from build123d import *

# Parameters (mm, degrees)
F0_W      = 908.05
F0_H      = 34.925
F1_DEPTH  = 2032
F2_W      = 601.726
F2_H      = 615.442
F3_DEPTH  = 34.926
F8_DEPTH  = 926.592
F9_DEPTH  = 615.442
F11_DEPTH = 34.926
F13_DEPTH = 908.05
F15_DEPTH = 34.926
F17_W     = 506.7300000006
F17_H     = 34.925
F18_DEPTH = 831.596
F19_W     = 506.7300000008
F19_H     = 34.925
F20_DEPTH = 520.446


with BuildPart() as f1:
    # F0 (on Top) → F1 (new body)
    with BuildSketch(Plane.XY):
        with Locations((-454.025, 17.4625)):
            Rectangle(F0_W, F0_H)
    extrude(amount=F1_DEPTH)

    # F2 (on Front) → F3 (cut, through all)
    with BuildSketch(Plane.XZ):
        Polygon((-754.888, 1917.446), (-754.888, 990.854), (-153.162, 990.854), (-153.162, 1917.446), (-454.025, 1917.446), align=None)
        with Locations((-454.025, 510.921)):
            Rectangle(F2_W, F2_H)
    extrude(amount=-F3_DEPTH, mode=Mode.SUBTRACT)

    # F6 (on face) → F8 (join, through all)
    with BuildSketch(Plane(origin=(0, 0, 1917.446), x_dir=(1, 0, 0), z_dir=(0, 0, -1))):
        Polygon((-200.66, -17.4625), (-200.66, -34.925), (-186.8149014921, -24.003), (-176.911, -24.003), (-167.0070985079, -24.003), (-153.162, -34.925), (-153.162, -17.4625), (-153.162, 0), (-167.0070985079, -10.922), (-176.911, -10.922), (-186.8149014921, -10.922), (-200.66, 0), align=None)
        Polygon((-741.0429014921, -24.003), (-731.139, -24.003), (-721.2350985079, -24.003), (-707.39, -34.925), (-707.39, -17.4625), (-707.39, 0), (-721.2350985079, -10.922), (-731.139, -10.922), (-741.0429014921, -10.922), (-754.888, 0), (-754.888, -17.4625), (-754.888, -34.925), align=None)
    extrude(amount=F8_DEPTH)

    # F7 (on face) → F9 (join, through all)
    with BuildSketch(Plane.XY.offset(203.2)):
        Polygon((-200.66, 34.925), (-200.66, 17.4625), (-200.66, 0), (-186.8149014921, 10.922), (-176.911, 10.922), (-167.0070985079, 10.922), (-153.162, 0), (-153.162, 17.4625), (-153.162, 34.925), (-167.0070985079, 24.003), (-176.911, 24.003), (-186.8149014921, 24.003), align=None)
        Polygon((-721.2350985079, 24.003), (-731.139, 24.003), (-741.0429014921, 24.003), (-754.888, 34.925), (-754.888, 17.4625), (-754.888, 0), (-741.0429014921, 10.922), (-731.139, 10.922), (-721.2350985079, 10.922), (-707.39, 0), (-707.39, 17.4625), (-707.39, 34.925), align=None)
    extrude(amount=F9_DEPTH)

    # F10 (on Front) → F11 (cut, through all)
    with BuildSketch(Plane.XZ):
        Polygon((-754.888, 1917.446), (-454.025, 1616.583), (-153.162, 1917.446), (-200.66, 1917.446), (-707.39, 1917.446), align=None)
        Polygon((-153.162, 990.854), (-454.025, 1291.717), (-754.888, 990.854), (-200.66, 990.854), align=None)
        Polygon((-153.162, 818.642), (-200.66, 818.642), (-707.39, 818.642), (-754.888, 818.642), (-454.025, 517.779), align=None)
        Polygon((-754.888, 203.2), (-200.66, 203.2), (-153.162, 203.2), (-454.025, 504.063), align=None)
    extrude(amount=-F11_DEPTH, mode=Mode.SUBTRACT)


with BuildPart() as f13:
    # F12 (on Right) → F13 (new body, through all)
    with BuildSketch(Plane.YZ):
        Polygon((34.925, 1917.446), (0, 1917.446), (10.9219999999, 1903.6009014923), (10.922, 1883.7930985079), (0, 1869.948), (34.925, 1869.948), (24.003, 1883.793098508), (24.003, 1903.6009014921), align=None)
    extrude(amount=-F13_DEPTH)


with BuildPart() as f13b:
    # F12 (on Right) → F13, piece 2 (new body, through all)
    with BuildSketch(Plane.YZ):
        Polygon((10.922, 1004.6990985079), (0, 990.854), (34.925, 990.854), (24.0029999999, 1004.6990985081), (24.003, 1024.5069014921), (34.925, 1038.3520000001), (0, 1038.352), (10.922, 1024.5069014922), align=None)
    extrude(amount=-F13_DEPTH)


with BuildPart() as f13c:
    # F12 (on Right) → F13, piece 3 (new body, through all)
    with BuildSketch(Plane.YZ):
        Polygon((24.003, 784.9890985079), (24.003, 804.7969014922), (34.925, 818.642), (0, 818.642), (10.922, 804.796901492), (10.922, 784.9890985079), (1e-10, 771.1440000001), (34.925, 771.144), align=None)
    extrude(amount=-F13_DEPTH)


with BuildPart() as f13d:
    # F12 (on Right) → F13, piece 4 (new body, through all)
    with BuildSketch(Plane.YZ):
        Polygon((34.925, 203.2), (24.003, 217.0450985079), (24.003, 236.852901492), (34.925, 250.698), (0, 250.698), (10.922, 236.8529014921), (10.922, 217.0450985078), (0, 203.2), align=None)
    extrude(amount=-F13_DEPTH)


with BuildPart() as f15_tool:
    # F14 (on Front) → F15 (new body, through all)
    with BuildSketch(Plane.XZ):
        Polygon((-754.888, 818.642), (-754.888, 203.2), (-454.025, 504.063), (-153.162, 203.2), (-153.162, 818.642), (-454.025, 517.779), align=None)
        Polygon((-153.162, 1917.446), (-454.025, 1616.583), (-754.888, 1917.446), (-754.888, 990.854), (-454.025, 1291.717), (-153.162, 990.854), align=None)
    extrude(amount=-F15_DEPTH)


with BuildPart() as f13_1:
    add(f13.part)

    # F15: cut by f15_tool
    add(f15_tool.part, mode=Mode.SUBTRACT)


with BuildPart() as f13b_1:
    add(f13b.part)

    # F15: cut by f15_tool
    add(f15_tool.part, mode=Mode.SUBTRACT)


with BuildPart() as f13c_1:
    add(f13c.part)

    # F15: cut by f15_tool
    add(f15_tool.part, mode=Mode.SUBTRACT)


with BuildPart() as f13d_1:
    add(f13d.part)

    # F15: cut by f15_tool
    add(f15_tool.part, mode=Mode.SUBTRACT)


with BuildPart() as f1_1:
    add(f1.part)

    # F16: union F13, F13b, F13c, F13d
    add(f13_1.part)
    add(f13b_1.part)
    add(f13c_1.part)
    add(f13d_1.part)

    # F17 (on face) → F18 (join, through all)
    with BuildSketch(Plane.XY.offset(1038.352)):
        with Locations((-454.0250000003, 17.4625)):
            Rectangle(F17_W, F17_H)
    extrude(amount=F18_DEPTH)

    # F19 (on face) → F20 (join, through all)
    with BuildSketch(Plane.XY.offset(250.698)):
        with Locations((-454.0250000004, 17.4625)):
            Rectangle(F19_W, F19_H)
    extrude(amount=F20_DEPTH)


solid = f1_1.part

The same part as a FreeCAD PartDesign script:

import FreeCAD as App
import Part
import Sketcher

V = App.Vector
Q = App.Units.Quantity

doc = App.newDocument("Part")
params = doc.addObject("Spreadsheet::Sheet", "Params")
for row, (alias, value) in enumerate([
    ("sketch1_width", "35.75 in"),
    ("sketch1_height", "1.375 in"),
    ("pad1_length", "80 in"),
    ("sketch2_width", "23.69 in"),
    ("sketch2_height", "36.48 in"),
    ("sketch2_height2", "24.23 in"),
    ("sketch3_height", "1.375 in"),
    ("pad2_length", "36.48 in"),
    ("sketch4_height", "1.375 in"),
    ("sketch5_width", "23.69 in"),
    ("sketch6_width", "1.375 in"),
    ("pad4_length", "35.75 in"),
    ("sketch7_width", "1.375 in"),
    ("pad5_length", "35.75 in"),
    ("sketch8_width", "1.375 in"),
    ("pad6_length", "35.75 in"),
    ("sketch9_width", "1.375 in"),
    ("pad7_length", "35.75 in"),
    ("sketch10_height", "24.23 in"),
    ("sketch10_height2", "36.48 in"),
    ("pad8_length", "34.926 mm"),
    ("sketch11_width", "19.95 in"),
    ("sketch11_height", "1.375 in"),
    ("pad9_length", "32.74 in"),
    ("sketch12_width", "19.95 in"),
    ("sketch12_height", "1.375 in"),
    ("pad10_length", "20.49 in"),
], start=1):
    params.set(f"A{row}", alias)
    params.set(f"B{row}", "=" + value)
    params.setAlias(f"B{row}", alias)

body = doc.addObject("PartDesign::Body", "Body")

sketch1 = body.newObject("Sketcher::SketchObject", "Sketch")
sketch1.AttachmentSupport = (doc.getObject("XY_Plane"), [""])
sketch1.MapMode = "FlatFace"
sketch1.addGeometry([
    Part.LineSegment(V(-908.05, 34.925, 0), V(-908.05, 0, 0)),
    Part.LineSegment(V(-908.05, 0, 0), V(0, 0, 0)),
    Part.LineSegment(V(0, 0, 0), V(0, 34.925, 0)),
    Part.LineSegment(V(0, 34.925, 0), V(-908.05, 34.925, 0)),
], False)
sketch1.addConstraint([
    Sketcher.Constraint("Coincident", 0, 2, 1, 1),
    Sketcher.Constraint("Coincident", 1, 2, 2, 1),
    Sketcher.Constraint("Coincident", 2, 2, 3, 1),
    Sketcher.Constraint("Coincident", 3, 2, 0, 1),
    Sketcher.Constraint("Vertical", 0),
    Sketcher.Constraint("Horizontal", 1),
    Sketcher.Constraint("Vertical", 2),
    Sketcher.Constraint("Horizontal", 3),
    Sketcher.Constraint("Coincident", 1, 2, -1, 1),
    Sketcher.Constraint("DistanceX", 1, 1, 1, 2, Q("35.75 in")),
    Sketcher.Constraint("DistanceY", 0, 2, 0, 1, Q("1.375 in")),
])
sketch1.setExpression("Constraints[9]", "Params.sketch1_width")
sketch1.setExpression("Constraints[10]", "Params.sketch1_height")
pad1 = body.newObject("PartDesign::Pad", "Pad")
pad1.Profile = sketch1
pad1.setExpression("Length", "Params.pad1_length")

sketch2 = body.newObject("Sketcher::SketchObject", "Sketch001")
sketch2.AttachmentSupport = (doc.getObject("XZ_Plane"), [""])
sketch2.MapMode = "FlatFace"
sketch2.addGeometry([
    Part.LineSegment(V(-754.888, 1917.446, 0), V(-754.888, 990.854, 0)),
    Part.LineSegment(V(-754.888, 990.854, 0), V(-153.162, 990.854, 0)),
    Part.LineSegment(V(-153.162, 990.854, 0), V(-153.162, 1917.446, 0)),
    Part.LineSegment(V(-153.162, 1917.446, 0), V(-754.888, 1917.446, 0)),
    Part.LineSegment(V(-754.888, 818.642, 0), V(-754.888, 203.2, 0)),
    Part.LineSegment(V(-754.888, 203.2, 0), V(-153.162, 203.2, 0)),
    Part.LineSegment(V(-153.162, 203.2, 0), V(-153.162, 818.642, 0)),
    Part.LineSegment(V(-153.162, 818.642, 0), V(-754.888, 818.642, 0)),
], False)
sketch2.addConstraint([
    Sketcher.Constraint("Coincident", 0, 2, 1, 1),
    Sketcher.Constraint("Coincident", 1, 2, 2, 1),
    Sketcher.Constraint("Coincident", 2, 2, 3, 1),
    Sketcher.Constraint("Coincident", 3, 2, 0, 1),
    Sketcher.Constraint("Coincident", 4, 2, 5, 1),
    Sketcher.Constraint("Coincident", 5, 2, 6, 1),
    Sketcher.Constraint("Coincident", 6, 2, 7, 1),
    Sketcher.Constraint("Coincident", 7, 2, 4, 1),
    Sketcher.Constraint("Vertical", 0),
    Sketcher.Constraint("Horizontal", 1),
    Sketcher.Constraint("Vertical", 2),
    Sketcher.Constraint("Horizontal", 3),
    Sketcher.Constraint("Vertical", 4),
    Sketcher.Constraint("Horizontal", 5),
    Sketcher.Constraint("Vertical", 6),
    Sketcher.Constraint("Horizontal", 7),
    Sketcher.Constraint("Vertical", 3, 2, 4, 2),
    Sketcher.Constraint("Vertical", 2, 2, 5, 2),
    Sketcher.Constraint("DistanceY", -1, 1, 4, 2, Q("8 in")),
    Sketcher.Constraint("DistanceX", 1, 1, 1, 2, Q("23.69 in")),
    Sketcher.Constraint("DistanceY", 0, 2, 0, 1, Q("36.48 in")),
    Sketcher.Constraint("DistanceY", 4, 2, 4, 1, Q("24.23 in")),
    Sketcher.Constraint("DistanceX", 0, 2, -1, 1, Q("29.72 in")),
    Sketcher.Constraint("DistanceY", -1, 1, 0, 2, Q("39.01 in")),
])
sketch2.setExpression("Constraints[19]", "Params.sketch2_width")
sketch2.setExpression("Constraints[20]", "Params.sketch2_height")
sketch2.setExpression("Constraints[21]", "Params.sketch2_height2")
pocket1 = body.newObject("PartDesign::Pocket", "Pocket")
pocket1.Profile = sketch2
pocket1.Type = "ThroughAll"

sketch3 = body.newObject("Sketcher::SketchObject", "Sketch002")
sketch3.AttachmentSupport = (doc.getObject("XY_Plane"), [""])
sketch3.MapMode = "FlatFace"
sketch3.AttachmentOffset = App.Placement(V(0, 0, 75.49 * 25.4), App.Rotation())
sketch3.addGeometry([
    Part.LineSegment(V(-200.66, 34.925, 0), V(-186.814901, 24.003, 0)),
    Part.LineSegment(V(-186.814901, 24.003, 0), V(-167.007099, 24.003, 0)),
    Part.LineSegment(V(-167.007099, 24.003, 0), V(-153.162, 34.925, 0)),
    Part.LineSegment(V(-153.162, 34.925, 0), V(-153.162, 0, 0)),
    Part.LineSegment(V(-153.162, 0, 0), V(-167.007099, 10.922, 0)),
    Part.LineSegment(V(-167.007099, 10.922, 0), V(-186.814901, 10.922, 0)),
    Part.LineSegment(V(-186.814901, 10.922, 0), V(-200.66, 0, 0)),
    Part.LineSegment(V(-200.66, 0, 0), V(-200.66, 34.925, 0)),
    Part.LineSegment(V(-741.042901, 24.003, 0), V(-721.235099, 24.003, 0)),
    Part.LineSegment(V(-721.235099, 24.003, 0), V(-707.39, 34.925, 0)),
    Part.LineSegment(V(-707.39, 34.925, 0), V(-707.39, 0, 0)),
    Part.LineSegment(V(-707.39, 0, 0), V(-721.235099, 10.922, 0)),
    Part.LineSegment(V(-721.235099, 10.922, 0), V(-741.042901, 10.922, 0)),
    Part.LineSegment(V(-741.042901, 10.922, 0), V(-754.888, 0, 0)),
    Part.LineSegment(V(-754.888, 0, 0), V(-754.888, 34.925, 0)),
    Part.LineSegment(V(-754.888, 34.925, 0), V(-741.042901, 24.003, 0)),
], False)
sketch3.addConstraint([
    Sketcher.Constraint("Coincident", 0, 2, 1, 1),
    Sketcher.Constraint("Coincident", 1, 2, 2, 1),
    Sketcher.Constraint("Coincident", 2, 2, 3, 1),
    Sketcher.Constraint("Coincident", 3, 2, 4, 1),
    Sketcher.Constraint("Coincident", 4, 2, 5, 1),
    Sketcher.Constraint("Coincident", 5, 2, 6, 1),
    Sketcher.Constraint("Coincident", 6, 2, 7, 1),
    Sketcher.Constraint("Coincident", 7, 2, 0, 1),
    Sketcher.Constraint("Coincident", 8, 2, 9, 1),
    Sketcher.Constraint("Coincident", 9, 2, 10, 1),
    Sketcher.Constraint("Coincident", 10, 2, 11, 1),
    Sketcher.Constraint("Coincident", 11, 2, 12, 1),
    Sketcher.Constraint("Coincident", 12, 2, 13, 1),
    Sketcher.Constraint("Coincident", 13, 2, 14, 1),
    Sketcher.Constraint("Coincident", 14, 2, 15, 1),
    Sketcher.Constraint("Coincident", 15, 2, 8, 1),
    Sketcher.Constraint("Horizontal", 1),
    Sketcher.Constraint("Vertical", 3),
    Sketcher.Constraint("Horizontal", 5),
    Sketcher.Constraint("Vertical", 7),
    Sketcher.Constraint("Horizontal", 8),
    Sketcher.Constraint("Vertical", 10),
    Sketcher.Constraint("Horizontal", 12),
    Sketcher.Constraint("Vertical", 14),
    Sketcher.Constraint("PointOnObject", 3, 2, -1),
    Sketcher.Constraint("PointOnObject", 6, 2, -1),
    Sketcher.Constraint("PointOnObject", 10, 2, -1),
    Sketcher.Constraint("PointOnObject", 13, 2, -1),
    Sketcher.Constraint("Parallel", 0, 4),
    Sketcher.Constraint("Parallel", 2, 6),
    Sketcher.Constraint("Parallel", 6, 9),
    Sketcher.Constraint("Parallel", 4, 11),
    Sketcher.Constraint("Parallel", 9, 13),
    Sketcher.Constraint("Parallel", 11, 15),
    Sketcher.Constraint("Horizontal", 2, 2, 7, 2),
    Sketcher.Constraint("Horizontal", 1, 2, 8, 2),
    Sketcher.Constraint("Horizontal", 7, 2, 9, 2),
    Sketcher.Constraint("Horizontal", 5, 2, 11, 2),
    Sketcher.Constraint("Horizontal", 9, 2, 14, 2),
    Sketcher.Constraint("Vertical", 1, 2, 4, 2),
    Sketcher.Constraint("Vertical", 0, 2, 5, 2),
    Sketcher.Constraint("Equal", 5, 8),
    Sketcher.Constraint("DistanceX", 6, 2, -1, 1, Q("7.9 in")),
    Sketcher.Constraint("DistanceY", 3, 2, 3, 1, Q("1.375 in")),
    Sketcher.Constraint("DistanceX", 2, 2, -1, 1, Q("6.03 in")),
    Sketcher.Constraint("DistanceY", -1, 1, 4, 2, Q("0.43 in")),
    Sketcher.Constraint("DistanceX", 9, 2, -1, 1, Q("27.85 in")),
    Sketcher.Constraint("DistanceX", 0, 2, -1, 1, Q("186.814901 mm")),
])
sketch3.setExpression("Constraints[43]", "Params.sketch3_height")
pad2 = body.newObject("PartDesign::Pad", "Pad001")
pad2.Profile = sketch3
pad2.setExpression("Length", "Params.pad2_length")
pad2.Reversed = True

sketch4 = body.newObject("Sketcher::SketchObject", "Sketch003")
sketch4.AttachmentSupport = (doc.getObject("XY_Plane"), [""])
sketch4.MapMode = "FlatFace"
sketch4.AttachmentOffset = App.Placement(V(0, 0, 8 * 25.4), App.Rotation())
sketch4.addGeometry([
    Part.LineSegment(V(-200.66, 34.925, 0), V(-200.66, 0, 0)),
    Part.LineSegment(V(-200.66, 0, 0), V(-186.814901, 10.922, 0)),
    Part.LineSegment(V(-186.814901, 10.922, 0), V(-167.007099, 10.922, 0)),
    Part.LineSegment(V(-167.007099, 10.922, 0), V(-153.162, 0, 0)),
    Part.LineSegment(V(-153.162, 0, 0), V(-153.162, 34.925, 0)),
    Part.LineSegment(V(-153.162, 34.925, 0), V(-167.007099, 24.003, 0)),
    Part.LineSegment(V(-167.007099, 24.003, 0), V(-186.814901, 24.003, 0)),
    Part.LineSegment(V(-186.814901, 24.003, 0), V(-200.66, 34.925, 0)),
    Part.LineSegment(V(-721.235099, 24.003, 0), V(-741.042901, 24.003, 0)),
    Part.LineSegment(V(-741.042901, 24.003, 0), V(-754.888, 34.925, 0)),
    Part.LineSegment(V(-754.888, 34.925, 0), V(-754.888, 0, 0)),
    Part.LineSegment(V(-754.888, 0, 0), V(-741.042901, 10.922, 0)),
    Part.LineSegment(V(-741.042901, 10.922, 0), V(-721.235099, 10.922, 0)),
    Part.LineSegment(V(-721.235099, 10.922, 0), V(-707.39, 0, 0)),
    Part.LineSegment(V(-707.39, 0, 0), V(-707.39, 34.925, 0)),
    Part.LineSegment(V(-707.39, 34.925, 0), V(-721.235099, 24.003, 0)),
], False)
sketch4.addConstraint([
    Sketcher.Constraint("Coincident", 0, 2, 1, 1),
    Sketcher.Constraint("Coincident", 1, 2, 2, 1),
    Sketcher.Constraint("Coincident", 2, 2, 3, 1),
    Sketcher.Constraint("Coincident", 3, 2, 4, 1),
    Sketcher.Constraint("Coincident", 4, 2, 5, 1),
    Sketcher.Constraint("Coincident", 5, 2, 6, 1),
    Sketcher.Constraint("Coincident", 6, 2, 7, 1),
    Sketcher.Constraint("Coincident", 7, 2, 0, 1),
    Sketcher.Constraint("Coincident", 8, 2, 9, 1),
    Sketcher.Constraint("Coincident", 9, 2, 10, 1),
    Sketcher.Constraint("Coincident", 10, 2, 11, 1),
    Sketcher.Constraint("Coincident", 11, 2, 12, 1),
    Sketcher.Constraint("Coincident", 12, 2, 13, 1),
    Sketcher.Constraint("Coincident", 13, 2, 14, 1),
    Sketcher.Constraint("Coincident", 14, 2, 15, 1),
    Sketcher.Constraint("Coincident", 15, 2, 8, 1),
    Sketcher.Constraint("Vertical", 0),
    Sketcher.Constraint("Horizontal", 2),
    Sketcher.Constraint("Vertical", 4),
    Sketcher.Constraint("Horizontal", 6),
    Sketcher.Constraint("Horizontal", 8),
    Sketcher.Constraint("Vertical", 10),
    Sketcher.Constraint("Horizontal", 12),
    Sketcher.Constraint("Vertical", 14),
    Sketcher.Constraint("PointOnObject", 0, 2, -1),
    Sketcher.Constraint("PointOnObject", 3, 2, -1),
    Sketcher.Constraint("PointOnObject", 10, 2, -1),
    Sketcher.Constraint("PointOnObject", 13, 2, -1),
    Sketcher.Constraint("Parallel", 1, 5),
    Sketcher.Constraint("Parallel", 3, 7),
    Sketcher.Constraint("Parallel", 7, 9),
    Sketcher.Constraint("Parallel", 5, 11),
    Sketcher.Constraint("Parallel", 9, 13),
    Sketcher.Constraint("Parallel", 11, 15),
    Sketcher.Constraint("Horizontal", 4, 2, 7, 2),
    Sketcher.Constraint("Horizontal", 6, 2, 8, 2),
    Sketcher.Constraint("Horizontal", 7, 2, 9, 2),
    Sketcher.Constraint("Horizontal", 2, 2, 11, 2),
    Sketcher.Constraint("Horizontal", 9, 2, 14, 2),
    Sketcher.Constraint("Vertical", 2, 2, 5, 2),
    Sketcher.Constraint("Vertical", 1, 2, 6, 2),
    Sketcher.Constraint("Equal", 6, 8),
    Sketcher.Constraint("DistanceX", 0, 2, -1, 1, Q("7.9 in")),
    Sketcher.Constraint("DistanceY", 0, 2, 0, 1, Q("1.375 in")),
    Sketcher.Constraint("DistanceY", -1, 1, 1, 2, Q("0.43 in")),
    Sketcher.Constraint("DistanceX", 3, 2, -1, 1, Q("6.03 in")),
    Sketcher.Constraint("DistanceX", 9, 2, -1, 1, Q("29.72 in")),
    Sketcher.Constraint("DistanceX", 1, 2, -1, 1, Q("186.814901 mm")),
])
sketch4.setExpression("Constraints[43]", "Params.sketch4_height")
pad3 = body.newObject("PartDesign::Pad", "Pad002")
pad3.Profile = sketch4
pad3.Type = "UpToLast"

sketch5 = body.newObject("Sketcher::SketchObject", "Sketch004")
sketch5.AttachmentSupport = (doc.getObject("XZ_Plane"), [""])
sketch5.MapMode = "FlatFace"
sketch5.addGeometry([
    Part.LineSegment(V(-754.888, 1917.446, 0), V(-454.025, 1616.583, 0)),
    Part.LineSegment(V(-454.025, 1616.583, 0), V(-153.162, 1917.446, 0)),
    Part.LineSegment(V(-153.162, 1917.446, 0), V(-754.888, 1917.446, 0)),
    Part.LineSegment(V(-153.162, 990.854, 0), V(-454.025, 1291.717, 0)),
    Part.LineSegment(V(-454.025, 1291.717, 0), V(-754.888, 990.854, 0)),
    Part.LineSegment(V(-754.888, 990.854, 0), V(-153.162, 990.854, 0)),
    Part.LineSegment(V(-153.162, 818.642, 0), V(-754.888, 818.642, 0)),
    Part.LineSegment(V(-754.888, 818.642, 0), V(-454.025, 517.779, 0)),
    Part.LineSegment(V(-454.025, 517.779, 0), V(-153.162, 818.642, 0)),
    Part.LineSegment(V(-754.888, 203.2, 0), V(-153.162, 203.2, 0)),
    Part.LineSegment(V(-153.162, 203.2, 0), V(-454.025, 504.063, 0)),
    Part.LineSegment(V(-454.025, 504.063, 0), V(-754.888, 203.2, 0)),
], False)
sketch5.addConstraint([
    Sketcher.Constraint("Coincident", 0, 2, 1, 1),
    Sketcher.Constraint("Coincident", 1, 2, 2, 1),
    Sketcher.Constraint("Coincident", 2, 2, 0, 1),
    Sketcher.Constraint("Coincident", 3, 2, 4, 1),
    Sketcher.Constraint("Coincident", 4, 2, 5, 1),
    Sketcher.Constraint("Coincident", 5, 2, 3, 1),
    Sketcher.Constraint("Coincident", 6, 2, 7, 1),
    Sketcher.Constraint("Coincident", 7, 2, 8, 1),
    Sketcher.Constraint("Coincident", 8, 2, 6, 1),
    Sketcher.Constraint("Coincident", 9, 2, 10, 1),
    Sketcher.Constraint("Coincident", 10, 2, 11, 1),
    Sketcher.Constraint("Coincident", 11, 2, 9, 1),
    Sketcher.Constraint("Horizontal", 2),
    Sketcher.Constraint("Horizontal", 5),
    Sketcher.Constraint("Horizontal", 6),
    Sketcher.Constraint("Horizontal", 9),
    Sketcher.Constraint("Perpendicular", 0, 1),
    Sketcher.Constraint("Perpendicular", 1, 3),
    Sketcher.Constraint("Perpendicular", 3, 4),
    Sketcher.Constraint("Perpendicular", 4, 7),
    Sketcher.Constraint("Perpendicular", 7, 8),
    Sketcher.Constraint("Perpendicular", 8, 10),
    Sketcher.Constraint("Perpendicular", 10, 11),
    Sketcher.Constraint("Vertical", 0, 2, 3, 2),
    Sketcher.Constraint("Vertical", 2, 2, 4, 2),
    Sketcher.Constraint("Vertical", 1, 2, 5, 2),
    Sketcher.Constraint("Vertical", 4, 2, 6, 2),
    Sketcher.Constraint("Vertical", 3, 2, 7, 2),
    Sketcher.Constraint("Vertical", 8, 2, 9, 2),
    Sketcher.Constraint("Vertical", 7, 2, 10, 2),
    Sketcher.Constraint("DistanceY", -1, 1, 9, 2, Q("8 in")),
    Sketcher.Constraint("DistanceX", 2, 2, 2, 1, Q("23.69 in")),
    Sketcher.Constraint("DistanceX", 1, 2, -1, 1, Q("6.03 in")),
    Sketcher.Constraint("DistanceY", -1, 1, 1, 2, Q("75.49 in")),
    Sketcher.Constraint("DistanceY", -1, 1, 4, 2, Q("39.01 in")),
    Sketcher.Constraint("DistanceY", -1, 1, 6, 2, Q("32.23 in")),
])
sketch5.setExpression("Constraints[31]", "Params.sketch5_width")
pocket2 = body.newObject("PartDesign::Pocket", "Pocket001")
pocket2.Profile = sketch5
pocket2.Type = "ThroughAll"
body2 = doc.addObject("PartDesign::Body", "Body001")

sketch6 = body2.newObject("Sketcher::SketchObject", "Sketch005")
sketch6.AttachmentSupport = (doc.getObject("YZ_Plane001"), [""])
sketch6.MapMode = "FlatFace"
sketch6.addGeometry([
    Part.LineSegment(V(34.925, 1917.446, 0), V(0, 1917.446, 0)),
    Part.LineSegment(V(0, 1917.446, 0), V(10.922, 1903.600901, 0)),
    Part.LineSegment(V(10.922, 1903.600901, 0), V(10.922, 1883.793099, 0)),
    Part.LineSegment(V(10.922, 1883.793099, 0), V(0, 1869.948, 0)),
    Part.LineSegment(V(0, 1869.948, 0), V(34.925, 1869.948, 0)),
    Part.LineSegment(V(34.925, 1869.948, 0), V(24.003, 1883.793099, 0)),
    Part.LineSegment(V(24.003, 1883.793099, 0), V(24.003, 1903.600901, 0)),
    Part.LineSegment(V(24.003, 1903.600901, 0), V(34.925, 1917.446, 0)),
], False)
sketch6.addConstraint([
    Sketcher.Constraint("Coincident", 0, 2, 1, 1),
    Sketcher.Constraint("Coincident", 1, 2, 2, 1),
    Sketcher.Constraint("Coincident", 2, 2, 3, 1),
    Sketcher.Constraint("Coincident", 3, 2, 4, 1),
    Sketcher.Constraint("Coincident", 4, 2, 5, 1),
    Sketcher.Constraint("Coincident", 5, 2, 6, 1),
    Sketcher.Constraint("Coincident", 6, 2, 7, 1),
    Sketcher.Constraint("Coincident", 7, 2, 0, 1),
    Sketcher.Constraint("Horizontal", 0),
    Sketcher.Constraint("Vertical", 2),
    Sketcher.Constraint("Horizontal", 4),
    Sketcher.Constraint("Vertical", 6),
    Sketcher.Constraint("PointOnObject", 0, 2, -2),
    Sketcher.Constraint("PointOnObject", 3, 2, -2),
    Sketcher.Constraint("Parallel", 1, 5),
    Sketcher.Constraint("Parallel", 3, 7),
    Sketcher.Constraint("Horizontal", 2, 2, 5, 2),
    Sketcher.Constraint("Horizontal", 1, 2, 6, 2),
    Sketcher.Constraint("Vertical", 4, 2, 7, 2),
    Sketcher.Constraint("DistanceX", 0, 2, 0, 1, Q("1.375 in")),
    Sketcher.Constraint("DistanceY", -1, 1, 0, 2, Q("75.49 in")),
    Sketcher.Constraint("DistanceX", -1, 1, 1, 2, Q("0.43 in")),
    Sketcher.Constraint("DistanceY", -1, 1, 3, 2, Q("73.62 in")),
    Sketcher.Constraint("DistanceY", -1, 1, 1, 2, Q("1903.600901 mm")),
])
sketch6.setExpression("Constraints[19]", "Params.sketch6_width")
pad4 = body2.newObject("PartDesign::Pad", "Pad003")
pad4.Profile = sketch6
pad4.setExpression("Length", "Params.pad4_length")
pad4.Reversed = True
body3 = doc.addObject("PartDesign::Body", "Body002")

sketch7 = body3.newObject("Sketcher::SketchObject", "Sketch006")
sketch7.AttachmentSupport = (doc.getObject("YZ_Plane002"), [""])
sketch7.MapMode = "FlatFace"
sketch7.addGeometry([
    Part.LineSegment(V(10.922, 1004.699099, 0), V(0, 990.854, 0)),
    Part.LineSegment(V(0, 990.854, 0), V(34.925, 990.854, 0)),
    Part.LineSegment(V(34.925, 990.854, 0), V(24.003, 1004.699099, 0)),
    Part.LineSegment(V(24.003, 1004.699099, 0), V(24.003, 1024.506901, 0)),
    Part.LineSegment(V(24.003, 1024.506901, 0), V(34.925, 1038.352, 0)),
    Part.LineSegment(V(34.925, 1038.352, 0), V(0, 1038.352, 0)),
    Part.LineSegment(V(0, 1038.352, 0), V(10.922, 1024.506901, 0)),
    Part.LineSegment(V(10.922, 1024.506901, 0), V(10.922, 1004.699099, 0)),
], False)
sketch7.addConstraint([
    Sketcher.Constraint("Coincident", 0, 2, 1, 1),
    Sketcher.Constraint("Coincident", 1, 2, 2, 1),
    Sketcher.Constraint("Coincident", 2, 2, 3, 1),
    Sketcher.Constraint("Coincident", 3, 2, 4, 1),
    Sketcher.Constraint("Coincident", 4, 2, 5, 1),
    Sketcher.Constraint("Coincident", 5, 2, 6, 1),
    Sketcher.Constraint("Coincident", 6, 2, 7, 1),
    Sketcher.Constraint("Coincident", 7, 2, 0, 1),
    Sketcher.Constraint("Horizontal", 1),
    Sketcher.Constraint("Vertical", 3),
    Sketcher.Constraint("Horizontal", 5),
    Sketcher.Constraint("Vertical", 7),
    Sketcher.Constraint("PointOnObject", 0, 2, -2),
    Sketcher.Constraint("PointOnObject", 5, 2, -2),
    Sketcher.Constraint("Parallel", 0, 4),
    Sketcher.Constraint("Parallel", 2, 6),
    Sketcher.Constraint("Horizontal", 3, 2, 6, 2),
    Sketcher.Constraint("Horizontal", 2, 2, 7, 2),
    Sketcher.Constraint("Vertical", 1, 2, 4, 2),
    Sketcher.Constraint("DistanceX", 1, 1, 1, 2, Q("1.375 in")),
    Sketcher.Constraint("DistanceY", -1, 1, 0, 2, Q("39.01 in")),
    Sketcher.Constraint("DistanceY", -1, 1, 4, 2, Q("40.88 in")),
    Sketcher.Constraint("DistanceX", -1, 1, 6, 2, Q("0.43 in")),
    Sketcher.Constraint("DistanceY", -1, 1, 2, 2, Q("1004.699099 mm")),
])
sketch7.setExpression("Constraints[19]", "Params.sketch7_width")
pad5 = body3.newObject("PartDesign::Pad", "Pad004")
pad5.Profile = sketch7
pad5.setExpression("Length", "Params.pad5_length")
pad5.Reversed = True
body4 = doc.addObject("PartDesign::Body", "Body003")

sketch8 = body4.newObject("Sketcher::SketchObject", "Sketch007")
sketch8.AttachmentSupport = (doc.getObject("YZ_Plane003"), [""])
sketch8.MapMode = "FlatFace"
sketch8.addGeometry([
    Part.LineSegment(V(24.003, 784.989099, 0), V(24.003, 804.796901, 0)),
    Part.LineSegment(V(24.003, 804.796901, 0), V(34.925, 818.642, 0)),
    Part.LineSegment(V(34.925, 818.642, 0), V(0, 818.642, 0)),
    Part.LineSegment(V(0, 818.642, 0), V(10.922, 804.796901, 0)),
    Part.LineSegment(V(10.922, 804.796901, 0), V(10.922, 784.989099, 0)),
    Part.LineSegment(V(10.922, 784.989099, 0), V(0, 771.144, 0)),
    Part.LineSegment(V(0, 771.144, 0), V(34.925, 771.144, 0)),
    Part.LineSegment(V(34.925, 771.144, 0), V(24.003, 784.989099, 0)),
], False)
sketch8.addConstraint([
    Sketcher.Constraint("Coincident", 0, 2, 1, 1),
    Sketcher.Constraint("Coincident", 1, 2, 2, 1),
    Sketcher.Constraint("Coincident", 2, 2, 3, 1),
    Sketcher.Constraint("Coincident", 3, 2, 4, 1),
    Sketcher.Constraint("Coincident", 4, 2, 5, 1),
    Sketcher.Constraint("Coincident", 5, 2, 6, 1),
    Sketcher.Constraint("Coincident", 6, 2, 7, 1),
    Sketcher.Constraint("Coincident", 7, 2, 0, 1),
    Sketcher.Constraint("Vertical", 0),
    Sketcher.Constraint("Horizontal", 2),
    Sketcher.Constraint("Vertical", 4),
    Sketcher.Constraint("Horizontal", 6),
    Sketcher.Constraint("PointOnObject", 2, 2, -2),
    Sketcher.Constraint("PointOnObject", 5, 2, -2),
    Sketcher.Constraint("Parallel", 1, 5),
    Sketcher.Constraint("Parallel", 3, 7),
    Sketcher.Constraint("Horizontal", 0, 2, 3, 2),
    Sketcher.Constraint("Horizontal", 4, 2, 7, 2),
    Sketcher.Constraint("Vertical", 1, 2, 6, 2),
    Sketcher.Constraint("DistanceX", 2, 2, 2, 1, Q("1.375 in")),
    Sketcher.Constraint("DistanceY", -1, 1, 1, 2, Q("32.23 in")),
    Sketcher.Constraint("DistanceX", -1, 1, 3, 2, Q("0.43 in")),
    Sketcher.Constraint("DistanceY", -1, 1, 5, 2, Q("30.36 in")),
    Sketcher.Constraint("DistanceY", -1, 1, 0, 2, Q("804.796901 mm")),
])
sketch8.setExpression("Constraints[19]", "Params.sketch8_width")
pad6 = body4.newObject("PartDesign::Pad", "Pad005")
pad6.Profile = sketch8
pad6.setExpression("Length", "Params.pad6_length")
pad6.Reversed = True
body5 = doc.addObject("PartDesign::Body", "Body004")

sketch9 = body5.newObject("Sketcher::SketchObject", "Sketch008")
sketch9.AttachmentSupport = (doc.getObject("YZ_Plane004"), [""])
sketch9.MapMode = "FlatFace"
sketch9.addGeometry([
    Part.LineSegment(V(34.925, 203.2, 0), V(24.003, 217.045099, 0)),
    Part.LineSegment(V(24.003, 217.045099, 0), V(24.003, 236.852901, 0)),
    Part.LineSegment(V(24.003, 236.852901, 0), V(34.925, 250.698, 0)),
    Part.LineSegment(V(34.925, 250.698, 0), V(0, 250.698, 0)),
    Part.LineSegment(V(0, 250.698, 0), V(10.922, 236.852901, 0)),
    Part.LineSegment(V(10.922, 236.852901, 0), V(10.922, 217.045099, 0)),
    Part.LineSegment(V(10.922, 217.045099, 0), V(0, 203.2, 0)),
    Part.LineSegment(V(0, 203.2, 0), V(34.925, 203.2, 0)),
], False)
sketch9.addConstraint([
    Sketcher.Constraint("Coincident", 0, 2, 1, 1),
    Sketcher.Constraint("Coincident", 1, 2, 2, 1),
    Sketcher.Constraint("Coincident", 2, 2, 3, 1),
    Sketcher.Constraint("Coincident", 3, 2, 4, 1),
    Sketcher.Constraint("Coincident", 4, 2, 5, 1),
    Sketcher.Constraint("Coincident", 5, 2, 6, 1),
    Sketcher.Constraint("Coincident", 6, 2, 7, 1),
    Sketcher.Constraint("Coincident", 7, 2, 0, 1),
    Sketcher.Constraint("Vertical", 1),
    Sketcher.Constraint("Horizontal", 3),
    Sketcher.Constraint("Vertical", 5),
    Sketcher.Constraint("Horizontal", 7),
    Sketcher.Constraint("PointOnObject", 3, 2, -2),
    Sketcher.Constraint("PointOnObject", 6, 2, -2),
    Sketcher.Constraint("Parallel", 0, 4),
    Sketcher.Constraint("Parallel", 2, 6),
    Sketcher.Constraint("Horizontal", 1, 2, 4, 2),
    Sketcher.Constraint("Horizontal", 0, 2, 5, 2),
    Sketcher.Constraint("Vertical", 2, 2, 7, 2),
    Sketcher.Constraint("DistanceY", -1, 1, 6, 2, Q("8 in")),
    Sketcher.Constraint("DistanceX", 3, 2, 3, 1, Q("1.375 in")),
    Sketcher.Constraint("DistanceY", -1, 1, 2, 2, Q("9.87 in")),
    Sketcher.Constraint("DistanceX", -1, 1, 4, 2, Q("0.43 in")),
    Sketcher.Constraint("DistanceY", -1, 1, 0, 2, Q("217.045099 mm")),
])
sketch9.setExpression("Constraints[20]", "Params.sketch9_width")
pad7 = body5.newObject("PartDesign::Pad", "Pad006")
pad7.Profile = sketch9
pad7.setExpression("Length", "Params.pad7_length")
pad7.Reversed = True
body6 = doc.addObject("PartDesign::Body", "Body005")
body6.AllowCompound = True

sketch10 = body6.newObject("Sketcher::SketchObject", "Sketch009")
sketch10.AttachmentSupport = (doc.getObject("XZ_Plane005"), [""])
sketch10.MapMode = "FlatFace"
sketch10.addGeometry([
    Part.LineSegment(V(-754.888, 818.642, 0), V(-754.888, 203.2, 0)),
    Part.LineSegment(V(-754.888, 203.2, 0), V(-454.025, 504.063, 0)),
    Part.LineSegment(V(-454.025, 504.063, 0), V(-153.162, 203.2, 0)),
    Part.LineSegment(V(-153.162, 203.2, 0), V(-153.162, 818.642, 0)),
    Part.LineSegment(V(-153.162, 818.642, 0), V(-454.025, 517.779, 0)),
    Part.LineSegment(V(-454.025, 517.779, 0), V(-754.888, 818.642, 0)),
    Part.LineSegment(V(-153.162, 1917.446, 0), V(-454.025, 1616.583, 0)),
    Part.LineSegment(V(-454.025, 1616.583, 0), V(-754.888, 1917.446, 0)),
    Part.LineSegment(V(-754.888, 1917.446, 0), V(-754.888, 990.854, 0)),
    Part.LineSegment(V(-754.888, 990.854, 0), V(-454.025, 1291.717, 0)),
    Part.LineSegment(V(-454.025, 1291.717, 0), V(-153.162, 990.854, 0)),
    Part.LineSegment(V(-153.162, 990.854, 0), V(-153.162, 1917.446, 0)),
], False)
sketch10.addConstraint([
    Sketcher.Constraint("Coincident", 0, 2, 1, 1),
    Sketcher.Constraint("Coincident", 1, 2, 2, 1),
    Sketcher.Constraint("Coincident", 2, 2, 3, 1),
    Sketcher.Constraint("Coincident", 3, 2, 4, 1),
    Sketcher.Constraint("Coincident", 4, 2, 5, 1),
    Sketcher.Constraint("Coincident", 5, 2, 0, 1),
    Sketcher.Constraint("Coincident", 6, 2, 7, 1),
    Sketcher.Constraint("Coincident", 7, 2, 8, 1),
    Sketcher.Constraint("Coincident", 8, 2, 9, 1),
    Sketcher.Constraint("Coincident", 9, 2, 10, 1),
    Sketcher.Constraint("Coincident", 10, 2, 11, 1),
    Sketcher.Constraint("Coincident", 11, 2, 6, 1),
    Sketcher.Constraint("Vertical", 0),
    Sketcher.Constraint("Vertical", 3),
    Sketcher.Constraint("Vertical", 8),
    Sketcher.Constraint("Vertical", 11),
    Sketcher.Constraint("Perpendicular", 1, 2),
    Sketcher.Constraint("Perpendicular", 2, 4),
    Sketcher.Constraint("Perpendicular", 4, 5),
    Sketcher.Constraint("Perpendicular", 5, 6),
    Sketcher.Constraint("Perpendicular", 6, 7),
    Sketcher.Constraint("Perpendicular", 7, 9),
    Sketcher.Constraint("Perpendicular", 9, 10),
    Sketcher.Constraint("Horizontal", 0, 2, 2, 2),
    Sketcher.Constraint("Horizontal", 3, 2, 5, 2),
    Sketcher.Constraint("Horizontal", 8, 2, 10, 2),
    Sketcher.Constraint("Horizontal", 7, 2, 11, 2),
    Sketcher.Constraint("Vertical", 1, 2, 4, 2),
    Sketcher.Constraint("Vertical", 4, 2, 6, 2),
    Sketcher.Constraint("Vertical", 5, 2, 7, 2),
    Sketcher.Constraint("DistanceY", -1, 1, 0, 2, Q("8 in")),
    Sketcher.Constraint("DistanceY", 0, 2, 0, 1, Q("24.23 in")),
    Sketcher.Constraint("DistanceY", 8, 2, 8, 1, Q("36.48 in")),
    Sketcher.Constraint("DistanceY", 1, 2, 6, 2, Q("43.8 in")),
    Sketcher.Constraint("DistanceX", 0, 2, -1, 1, Q("29.72 in")),
    Sketcher.Constraint("DistanceX", 2, 2, -1, 1, Q("6.03 in")),
])
sketch10.setExpression("Constraints[31]", "Params.sketch10_height")
sketch10.setExpression("Constraints[32]", "Params.sketch10_height2")
pad8 = body6.newObject("PartDesign::Pad", "Pad007")
pad8.Profile = sketch10
pad8.setExpression("Length", "Params.pad8_length")
pad8.Reversed = True
body2.AllowCompound = True
doc.recompute()

body7 = doc.addObject("PartDesign::Body", "Body006")
body7.BaseFeature = body6
boolean = body2.newObject("PartDesign::Boolean", "Boolean")
boolean.Type = "Cut"
boolean.addObjects([body7])
doc.recompute()
body3.AllowCompound = True
doc.recompute()

body8 = doc.addObject("PartDesign::Body", "Body007")
body8.BaseFeature = body6
boolean2 = body3.newObject("PartDesign::Boolean", "Boolean001")
boolean2.Type = "Cut"
boolean2.addObjects([body8])
doc.recompute()
body4.AllowCompound = True
doc.recompute()

body9 = doc.addObject("PartDesign::Body", "Body008")
body9.BaseFeature = body6
boolean3 = body4.newObject("PartDesign::Boolean", "Boolean002")
boolean3.Type = "Cut"
boolean3.addObjects([body9])
doc.recompute()
body5.AllowCompound = True
doc.recompute()

boolean4 = body5.newObject("PartDesign::Boolean", "Boolean003")
boolean4.Type = "Cut"
boolean4.addObjects([body6])
doc.recompute()

boolean5 = body.newObject("PartDesign::Boolean", "Boolean004")
boolean5.Type = "Fuse"
boolean5.addObjects([body2])
doc.recompute()

boolean6 = body.newObject("PartDesign::Boolean", "Boolean005")
boolean6.Type = "Fuse"
boolean6.addObjects([body3])
doc.recompute()

boolean7 = body.newObject("PartDesign::Boolean", "Boolean006")
boolean7.Type = "Fuse"
boolean7.addObjects([body4])
doc.recompute()

boolean8 = body.newObject("PartDesign::Boolean", "Boolean007")
boolean8.Type = "Fuse"
boolean8.addObjects([body5])

sketch11 = body.newObject("Sketcher::SketchObject", "Sketch010")
sketch11.AttachmentSupport = (doc.getObject("XY_Plane"), [""])
sketch11.MapMode = "FlatFace"
sketch11.AttachmentOffset = App.Placement(V(0, 0, 40.88 * 25.4), App.Rotation())
sketch11.addGeometry([
    Part.LineSegment(V(-707.39, 34.925, 0), V(-707.39, 0, 0)),
    Part.LineSegment(V(-707.39, 0, 0), V(-200.66, 0, 0)),
    Part.LineSegment(V(-200.66, 0, 0), V(-200.66, 34.925, 0)),
    Part.LineSegment(V(-200.66, 34.925, 0), V(-707.39, 34.925, 0)),
], False)
sketch11.addConstraint([
    Sketcher.Constraint("Coincident", 0, 2, 1, 1),
    Sketcher.Constraint("Coincident", 1, 2, 2, 1),
    Sketcher.Constraint("Coincident", 2, 2, 3, 1),
    Sketcher.Constraint("Coincident", 3, 2, 0, 1),
    Sketcher.Constraint("Vertical", 0),
    Sketcher.Constraint("Horizontal", 1),
    Sketcher.Constraint("Vertical", 2),
    Sketcher.Constraint("Horizontal", 3),
    Sketcher.Constraint("PointOnObject", 0, 2, -1),
    Sketcher.Constraint("DistanceX", 1, 1, 1, 2, Q("19.95 in")),
    Sketcher.Constraint("DistanceX", 1, 2, -1, 1, Q("7.9 in")),
    Sketcher.Constraint("DistanceY", 0, 2, 0, 1, Q("1.375 in")),
])
sketch11.setExpression("Constraints[9]", "Params.sketch11_width")
sketch11.setExpression("Constraints[11]", "Params.sketch11_height")
pad9 = body.newObject("PartDesign::Pad", "Pad008")
pad9.Profile = sketch11
pad9.setExpression("Length", "Params.pad9_length")

sketch12 = body.newObject("Sketcher::SketchObject", "Sketch011")
sketch12.AttachmentSupport = (doc.getObject("XY_Plane"), [""])
sketch12.MapMode = "FlatFace"
sketch12.AttachmentOffset = App.Placement(V(0, 0, 9.87 * 25.4), App.Rotation())
sketch12.addGeometry([
    Part.LineSegment(V(-707.39, 34.925, 0), V(-707.39, 0, 0)),
    Part.LineSegment(V(-707.39, 0, 0), V(-200.66, 0, 0)),
    Part.LineSegment(V(-200.66, 0, 0), V(-200.66, 34.925, 0)),
    Part.LineSegment(V(-200.66, 34.925, 0), V(-707.39, 34.925, 0)),
], False)
sketch12.addConstraint([
    Sketcher.Constraint("Coincident", 0, 2, 1, 1),
    Sketcher.Constraint("Coincident", 1, 2, 2, 1),
    Sketcher.Constraint("Coincident", 2, 2, 3, 1),
    Sketcher.Constraint("Coincident", 3, 2, 0, 1),
    Sketcher.Constraint("Vertical", 0),
    Sketcher.Constraint("Horizontal", 1),
    Sketcher.Constraint("Vertical", 2),
    Sketcher.Constraint("Horizontal", 3),
    Sketcher.Constraint("PointOnObject", 0, 2, -1),
    Sketcher.Constraint("DistanceX", 1, 1, 1, 2, Q("19.95 in")),
    Sketcher.Constraint("DistanceX", 1, 2, -1, 1, Q("7.9 in")),
    Sketcher.Constraint("DistanceY", 0, 2, 0, 1, Q("1.375 in")),
])
sketch12.setExpression("Constraints[9]", "Params.sketch12_width")
sketch12.setExpression("Constraints[11]", "Params.sketch12_height")
pad10 = body.newObject("PartDesign::Pad", "Pad009")
pad10.Profile = sketch12
pad10.setExpression("Length", "Params.pad10_length")

doc.recompute()
